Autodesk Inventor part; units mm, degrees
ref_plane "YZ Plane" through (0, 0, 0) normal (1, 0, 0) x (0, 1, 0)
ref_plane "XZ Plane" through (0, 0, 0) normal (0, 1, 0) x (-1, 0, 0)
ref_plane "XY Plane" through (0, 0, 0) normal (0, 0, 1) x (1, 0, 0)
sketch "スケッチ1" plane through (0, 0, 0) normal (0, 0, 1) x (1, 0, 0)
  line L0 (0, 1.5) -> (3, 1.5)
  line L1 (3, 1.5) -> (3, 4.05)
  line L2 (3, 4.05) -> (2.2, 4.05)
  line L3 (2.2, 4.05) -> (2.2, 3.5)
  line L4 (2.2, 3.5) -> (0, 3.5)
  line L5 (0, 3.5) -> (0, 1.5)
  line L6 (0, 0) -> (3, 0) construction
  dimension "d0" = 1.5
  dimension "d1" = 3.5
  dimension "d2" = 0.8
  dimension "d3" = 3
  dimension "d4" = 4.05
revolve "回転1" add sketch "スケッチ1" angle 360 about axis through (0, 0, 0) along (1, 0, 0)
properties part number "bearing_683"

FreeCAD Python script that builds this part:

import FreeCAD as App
import Part
import Sketcher
from FreeCAD import Vector
Q = App.Units.Quantity


def add_polygon(sketch, points):
    """Adds a closed chain of lines whose ends are joined by coincident constraints."""
    first, n = sketch.GeometryCount, len(points)
    for a, b in zip(points, points[1:] + points[:1]):
        sketch.addGeometry(Part.LineSegment(App.Vector(*a, 0), App.Vector(*b, 0)), False)
    for i in range(n):
        sketch.addConstraint(Sketcher.Constraint("Coincident", first + i, 2, first + (i + 1) % n, 1))

doc = App.newDocument("Part")
body = doc.addObject("PartDesign::Body", "Body")

# Sketch on XY plane
sketch1 = body.newObject("Sketcher::SketchObject", "Sketch")
sketch1.AttachmentSupport = (doc.getObject("XY_Plane"), [""])
sketch1.MapMode = "FlatFace"
add_polygon(sketch1, [(0, 3.5), (0, 1.5), (3, 1.5), (3, 4), (2.2, 4), (2.2, 3.5)])  # lines 0-5
sketch1.addConstraint(Sketcher.Constraint("Vertical", 0))
sketch1.addConstraint(Sketcher.Constraint("Horizontal", 1))
sketch1.addConstraint(Sketcher.Constraint("Vertical", 2))
sketch1.addConstraint(Sketcher.Constraint("Horizontal", 3))
sketch1.addConstraint(Sketcher.Constraint("Vertical", 4))
sketch1.addConstraint(Sketcher.Constraint("Horizontal", 5))
sketch1.addConstraint(Sketcher.Constraint("PointOnObject", 0, 2, -2))
sketch1.addConstraint(Sketcher.Constraint("DistanceX", 1, 1, 1, 2, Q("3 mm")))
sketch1.addConstraint(Sketcher.Constraint("DistanceX", 3, 2, 3, 1, Q("0.8 mm")))
sketch1.addConstraint(Sketcher.Constraint("DistanceY", -1, 1, 0, 2, Q("1.5 mm")))
sketch1.addConstraint(Sketcher.Constraint("DistanceY", -1, 1, 4, 2, Q("3.5 mm")))
sketch1.addConstraint(Sketcher.Constraint("DistanceY", -1, 1, 2, 2, Q("4.05 mm")))
revolution = body.newObject("PartDesign::Revolution", "Revolution")
revolution.Profile = sketch1
revolution.ReferenceAxis = (sketch1, ["H_Axis"])
revolution.Angle = 360

doc.recompute()
